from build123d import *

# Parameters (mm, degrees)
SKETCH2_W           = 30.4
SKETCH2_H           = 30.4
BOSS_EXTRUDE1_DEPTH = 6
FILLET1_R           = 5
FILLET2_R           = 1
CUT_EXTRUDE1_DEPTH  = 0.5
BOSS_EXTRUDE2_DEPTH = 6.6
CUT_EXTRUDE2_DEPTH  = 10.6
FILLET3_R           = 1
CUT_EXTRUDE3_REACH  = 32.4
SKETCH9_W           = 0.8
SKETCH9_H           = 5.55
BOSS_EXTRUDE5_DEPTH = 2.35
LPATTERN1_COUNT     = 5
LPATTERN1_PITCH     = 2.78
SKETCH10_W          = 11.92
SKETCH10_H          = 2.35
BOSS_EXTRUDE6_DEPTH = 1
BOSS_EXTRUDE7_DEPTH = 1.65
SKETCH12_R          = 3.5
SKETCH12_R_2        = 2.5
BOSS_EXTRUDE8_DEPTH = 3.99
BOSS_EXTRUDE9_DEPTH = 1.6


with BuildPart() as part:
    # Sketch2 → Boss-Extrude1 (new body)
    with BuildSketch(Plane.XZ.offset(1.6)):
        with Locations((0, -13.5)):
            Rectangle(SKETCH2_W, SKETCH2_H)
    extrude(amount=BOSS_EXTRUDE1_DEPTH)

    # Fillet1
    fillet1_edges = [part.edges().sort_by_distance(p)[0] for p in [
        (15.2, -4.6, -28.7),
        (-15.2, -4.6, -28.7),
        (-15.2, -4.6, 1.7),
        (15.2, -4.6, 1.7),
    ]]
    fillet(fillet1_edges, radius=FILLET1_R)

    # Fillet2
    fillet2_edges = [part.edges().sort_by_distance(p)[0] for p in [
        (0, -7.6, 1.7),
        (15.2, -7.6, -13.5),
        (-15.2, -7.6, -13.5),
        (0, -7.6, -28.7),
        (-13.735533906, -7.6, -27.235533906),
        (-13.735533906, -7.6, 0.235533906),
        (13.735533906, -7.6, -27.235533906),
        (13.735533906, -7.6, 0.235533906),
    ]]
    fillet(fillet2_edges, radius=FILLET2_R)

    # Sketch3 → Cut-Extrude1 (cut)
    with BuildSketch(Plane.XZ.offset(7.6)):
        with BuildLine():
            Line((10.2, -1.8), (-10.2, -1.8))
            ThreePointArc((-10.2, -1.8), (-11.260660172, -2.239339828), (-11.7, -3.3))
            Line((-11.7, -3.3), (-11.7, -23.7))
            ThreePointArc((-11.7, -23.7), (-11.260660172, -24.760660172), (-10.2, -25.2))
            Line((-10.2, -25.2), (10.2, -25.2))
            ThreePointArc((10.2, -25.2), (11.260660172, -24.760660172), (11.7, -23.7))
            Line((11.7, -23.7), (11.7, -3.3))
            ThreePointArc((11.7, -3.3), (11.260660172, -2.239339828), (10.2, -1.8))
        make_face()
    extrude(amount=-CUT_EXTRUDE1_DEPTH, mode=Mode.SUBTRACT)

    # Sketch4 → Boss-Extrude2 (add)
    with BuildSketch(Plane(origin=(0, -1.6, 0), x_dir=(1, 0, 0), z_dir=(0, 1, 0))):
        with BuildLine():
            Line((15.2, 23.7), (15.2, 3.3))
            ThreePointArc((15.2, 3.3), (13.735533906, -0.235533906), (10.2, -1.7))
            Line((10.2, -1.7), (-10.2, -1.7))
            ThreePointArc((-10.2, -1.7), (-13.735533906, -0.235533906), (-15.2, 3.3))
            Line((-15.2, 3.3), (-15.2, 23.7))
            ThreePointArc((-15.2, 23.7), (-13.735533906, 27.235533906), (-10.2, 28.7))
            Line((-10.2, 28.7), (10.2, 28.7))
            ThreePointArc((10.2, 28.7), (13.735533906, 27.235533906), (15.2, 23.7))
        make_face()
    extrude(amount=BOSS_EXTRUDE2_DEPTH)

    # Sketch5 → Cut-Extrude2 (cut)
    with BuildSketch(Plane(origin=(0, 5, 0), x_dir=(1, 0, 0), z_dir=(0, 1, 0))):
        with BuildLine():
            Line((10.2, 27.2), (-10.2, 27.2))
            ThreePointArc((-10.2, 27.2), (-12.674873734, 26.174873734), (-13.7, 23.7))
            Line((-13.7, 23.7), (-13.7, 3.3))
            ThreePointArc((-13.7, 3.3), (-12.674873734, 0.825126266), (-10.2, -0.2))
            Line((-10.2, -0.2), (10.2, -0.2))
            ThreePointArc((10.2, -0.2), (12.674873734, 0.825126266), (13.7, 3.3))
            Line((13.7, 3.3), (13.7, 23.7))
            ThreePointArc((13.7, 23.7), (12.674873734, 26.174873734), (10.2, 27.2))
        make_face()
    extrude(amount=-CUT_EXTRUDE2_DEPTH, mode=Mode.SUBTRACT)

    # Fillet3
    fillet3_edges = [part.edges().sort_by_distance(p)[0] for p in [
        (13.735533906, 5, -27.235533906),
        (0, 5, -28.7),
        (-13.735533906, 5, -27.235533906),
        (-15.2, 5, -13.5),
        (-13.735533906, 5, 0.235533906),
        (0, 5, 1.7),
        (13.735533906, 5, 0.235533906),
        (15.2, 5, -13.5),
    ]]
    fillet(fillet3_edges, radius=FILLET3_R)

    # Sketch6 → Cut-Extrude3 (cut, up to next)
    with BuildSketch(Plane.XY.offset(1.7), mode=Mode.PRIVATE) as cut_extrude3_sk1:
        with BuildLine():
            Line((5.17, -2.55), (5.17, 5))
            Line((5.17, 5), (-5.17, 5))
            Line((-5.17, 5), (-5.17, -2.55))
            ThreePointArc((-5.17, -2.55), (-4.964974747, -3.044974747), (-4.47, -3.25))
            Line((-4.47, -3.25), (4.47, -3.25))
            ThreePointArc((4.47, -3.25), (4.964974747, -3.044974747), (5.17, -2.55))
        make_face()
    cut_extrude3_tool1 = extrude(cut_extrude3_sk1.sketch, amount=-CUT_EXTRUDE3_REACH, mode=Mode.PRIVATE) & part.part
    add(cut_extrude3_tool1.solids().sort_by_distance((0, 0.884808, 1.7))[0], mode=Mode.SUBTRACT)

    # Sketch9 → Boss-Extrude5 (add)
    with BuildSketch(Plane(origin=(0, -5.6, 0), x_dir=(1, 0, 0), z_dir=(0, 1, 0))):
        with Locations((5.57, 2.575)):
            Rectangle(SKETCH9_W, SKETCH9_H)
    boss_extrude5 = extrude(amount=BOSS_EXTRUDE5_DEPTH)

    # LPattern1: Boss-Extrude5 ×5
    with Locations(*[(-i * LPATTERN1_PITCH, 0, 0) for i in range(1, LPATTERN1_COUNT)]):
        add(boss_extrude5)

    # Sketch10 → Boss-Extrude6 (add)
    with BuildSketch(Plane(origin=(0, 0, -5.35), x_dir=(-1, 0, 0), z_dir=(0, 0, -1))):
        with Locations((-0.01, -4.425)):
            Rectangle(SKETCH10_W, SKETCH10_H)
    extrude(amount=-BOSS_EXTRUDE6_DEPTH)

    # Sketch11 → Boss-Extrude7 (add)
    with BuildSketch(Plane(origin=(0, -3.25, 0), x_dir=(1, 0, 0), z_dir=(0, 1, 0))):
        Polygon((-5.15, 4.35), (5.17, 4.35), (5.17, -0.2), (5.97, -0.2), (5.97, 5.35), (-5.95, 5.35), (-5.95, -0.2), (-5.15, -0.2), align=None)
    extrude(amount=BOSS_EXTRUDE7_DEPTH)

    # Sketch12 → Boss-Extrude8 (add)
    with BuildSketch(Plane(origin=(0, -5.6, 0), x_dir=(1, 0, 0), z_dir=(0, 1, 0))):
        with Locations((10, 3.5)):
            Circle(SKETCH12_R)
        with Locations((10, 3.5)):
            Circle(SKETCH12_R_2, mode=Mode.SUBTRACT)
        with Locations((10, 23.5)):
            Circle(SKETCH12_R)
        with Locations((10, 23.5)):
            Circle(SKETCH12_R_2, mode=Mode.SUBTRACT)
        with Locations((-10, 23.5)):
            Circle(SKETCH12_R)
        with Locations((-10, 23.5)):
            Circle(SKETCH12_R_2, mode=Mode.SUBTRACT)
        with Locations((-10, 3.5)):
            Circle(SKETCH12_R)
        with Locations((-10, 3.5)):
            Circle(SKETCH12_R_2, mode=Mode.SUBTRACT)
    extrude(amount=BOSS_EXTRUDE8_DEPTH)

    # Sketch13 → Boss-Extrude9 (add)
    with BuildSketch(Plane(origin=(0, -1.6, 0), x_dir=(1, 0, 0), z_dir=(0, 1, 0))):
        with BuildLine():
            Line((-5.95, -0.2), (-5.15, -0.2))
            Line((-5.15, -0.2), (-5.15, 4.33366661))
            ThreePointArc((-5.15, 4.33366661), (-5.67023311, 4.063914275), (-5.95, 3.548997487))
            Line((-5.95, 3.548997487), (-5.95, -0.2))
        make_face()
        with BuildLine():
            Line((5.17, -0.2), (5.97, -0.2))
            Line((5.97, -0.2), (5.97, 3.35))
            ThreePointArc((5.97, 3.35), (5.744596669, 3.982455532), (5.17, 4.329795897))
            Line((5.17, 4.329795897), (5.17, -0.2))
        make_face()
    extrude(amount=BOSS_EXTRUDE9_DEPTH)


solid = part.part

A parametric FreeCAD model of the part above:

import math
import FreeCAD as App
import Part
import Sketcher

V = App.Vector


def edges_at(feature, points):
    """Names of the edges that pass closest to the given points."""
    edges = feature.Shape.Edges
    near = lambda p: min(range(len(edges)), key=lambda i: edges[i].distToShape(Part.Vertex(*p))[0])
    return sorted({f"Edge{near(p) + 1}" for p in points})


def add_polygon(sketch, points):
    """Adds a closed chain of lines whose ends are joined by coincident constraints."""
    first, n = sketch.GeometryCount, len(points)
    for a, b in zip(points, points[1:] + points[:1]):
        sketch.addGeometry(Part.LineSegment(App.Vector(*a, 0), App.Vector(*b, 0)), False)
    for i in range(n):
        sketch.addConstraint(Sketcher.Constraint("Coincident", first + i, 2, first + (i + 1) % n, 1))

doc = App.newDocument("Part")
body = doc.addObject("PartDesign::Body", "Body")

# Sketch on XZ plane
sketch1 = body.newObject("Sketcher::SketchObject", "Sketch")
sketch1.AttachmentSupport = (doc.getObject("XZ_Plane"), [""])
sketch1.MapMode = "FlatFace"
sketch1.AttachmentOffset = App.Placement(V(0, 0, 1.6), App.Rotation())
add_polygon(sketch1, [(-15, 2), (-15, -29), (15, -29), (15, 2)])  # lines 0-3
sketch1.addConstraint([
    Sketcher.Constraint("Vertical", 0),
    Sketcher.Constraint("Horizontal", 1),
    Sketcher.Constraint("Vertical", 2),
    Sketcher.Constraint("Horizontal", 3),
    Sketcher.Constraint("Equal", 3, 0),
    Sketcher.Constraint("DistanceX", 1, 1, 1, 2, 30.4),
    Sketcher.Constraint("DistanceX", 0, 2, -1, 1, 15.2),
    Sketcher.Constraint("DistanceY", 0, 2, -1, 1, 28.7),
])
pad1 = body.newObject("PartDesign::Pad", "Pad")
pad1.Profile = sketch1
pad1.Length = 6
doc.recompute()

fillet = body.newObject("PartDesign::Fillet", "Fillet")
fillet.Base = (pad1, edges_at(pad1, [
    (15.2, -4.6, -28.7),
    (-15.2, -4.6, -28.7),
    (-15.2, -4.6, 1.7),
    (15.2, -4.6, 1.7),
]))
fillet.Radius = 5
doc.recompute()

fillet2 = body.newObject("PartDesign::Fillet", "Fillet001")
fillet2.Base = (fillet, edges_at(fillet, [
    (0, -7.6, 1.7),
    (15.2, -7.6, -13.5),
    (-15.2, -7.6, -13.5),
    (0, -7.6, -28.7),
    (-13.736, -7.6, -27.236),
    (-13.736, -7.6, 0.236),
    (13.736, -7.6, -27.236),
    (13.736, -7.6, 0.236),
]))
fillet2.Radius = 1

# Sketch on XZ plane
sketch2 = body.newObject("Sketcher::SketchObject", "Sketch001")
sketch2.AttachmentSupport = (doc.getObject("XZ_Plane"), [""])
sketch2.MapMode = "FlatFace"
sketch2.AttachmentOffset = App.Placement(V(0, 0, 7.6), App.Rotation())
sketch2.addGeometry([
    Part.LineSegment(V(10.2, -1.8, 0), V(-10.2, -1.8, 0)),  # 0
    Part.ArcOfCircle(Part.Circle(V(-10.2, -3.3, 0), V(0, 0, 1), 1.5), math.radians(90), math.radians(180)),  # 1
    Part.LineSegment(V(-11.7, -3.3, 0), V(-11.7, -23.7, 0)),  # 2
    Part.ArcOfCircle(Part.Circle(V(-10.2, -23.7, 0), V(0, 0, 1), 1.5), math.radians(180), math.radians(270)),  # 3
    Part.LineSegment(V(-10.2, -25.2, 0), V(10.2, -25.2, 0)),  # 4
    Part.ArcOfCircle(Part.Circle(V(10.2, -23.7, 0), V(0, 0, 1), 1.5), math.radians(-90), math.radians(0)),  # 5
    Part.LineSegment(V(11.7, -23.7, 0), V(11.7, -3.3, 0)),  # 6
    Part.ArcOfCircle(Part.Circle(V(10.2, -3.3, 0), V(0, 0, 1), 1.5), math.radians(0), math.radians(90)),  # 7
], False)
sketch2.addConstraint([
    Sketcher.Constraint("Tangent", 0, 2, 1, 1),
    Sketcher.Constraint("Tangent", 1, 2, 2, 1),
    Sketcher.Constraint("Tangent", 2, 2, 3, 1),
    Sketcher.Constraint("Tangent", 3, 2, 4, 1),
    Sketcher.Constraint("Tangent", 4, 2, 5, 1),
    Sketcher.Constraint("Tangent", 5, 2, 6, 1),
    Sketcher.Constraint("Tangent", 6, 2, 7, 1),
    Sketcher.Constraint("Tangent", 7, 2, 0, 1),
    Sketcher.Constraint("Horizontal", 0),
    Sketcher.Constraint("Vertical", 2),
    Sketcher.Constraint("Horizontal", 4),
    Sketcher.Constraint("Vertical", 6),
    Sketcher.Constraint("Equal", 1, 3),
    Sketcher.Constraint("Equal", 3, 5),
    Sketcher.Constraint("Equal", 5, 7),
    Sketcher.Constraint("Equal", 4, 2),
    Sketcher.Constraint("Radius", 1, 1.5),
    Sketcher.Constraint("DistanceX", 0, 2, 0, 1, 20.4),
    Sketcher.Constraint("DistanceX", 1, 3, -1, 1, 10.2),
    Sketcher.Constraint("DistanceY", 1, 3, -1, 1, 3.3),
])
pocket1 = body.newObject("PartDesign::Pocket", "Pocket")
pocket1.Profile = sketch2
pocket1.Length = 0.5

# Sketch on XZ plane
sketch3 = body.newObject("Sketcher::SketchObject", "Sketch002")
sketch3.AttachmentSupport = (doc.getObject("XZ_Plane"), [""])
sketch3.MapMode = "FlatFace"
sketch3.AttachmentOffset = App.Placement(V(0, 0, 1.6), App.Rotation())
sketch3.addGeometry([
    Part.LineSegment(V(15, -3, 0), V(15, -24, 0)),  # 0
    Part.ArcOfCircle(Part.Circle(V(10, -24, 0), V(0, 0, 1), 5), math.radians(-90), math.radians(0)),  # 1
    Part.LineSegment(V(10, -29, 0), V(-10, -29, 0)),  # 2
    Part.ArcOfCircle(Part.Circle(V(-10, -24, 0), V(0, 0, 1), 5), math.radians(180), math.radians(270)),  # 3
    Part.LineSegment(V(-15, -24, 0), V(-15, -3, 0)),  # 4
    Part.ArcOfCircle(Part.Circle(V(-10, -3, 0), V(0, 0, 1), 5), math.radians(90), math.radians(180)),  # 5
    Part.LineSegment(V(-10, 2, 0), V(10, 2, 0)),  # 6
    Part.ArcOfCircle(Part.Circle(V(10, -3, 0), V(0, 0, 1), 5), math.radians(0), math.radians(90)),  # 7
], False)
sketch3.addConstraint([
    Sketcher.Constraint("Tangent", 0, 2, 1, 2),
    Sketcher.Constraint("Tangent", 1, 1, 2, 1),
    Sketcher.Constraint("Tangent", 2, 2, 3, 2),
    Sketcher.Constraint("Tangent", 3, 1, 4, 1),
    Sketcher.Constraint("Tangent", 4, 2, 5, 2),
    Sketcher.Constraint("Tangent", 5, 1, 6, 1),
    Sketcher.Constraint("Tangent", 6, 2, 7, 2),
    Sketcher.Constraint("Tangent", 7, 1, 0, 1),
    Sketcher.Constraint("Vertical", 0),
    Sketcher.Constraint("Horizontal", 2),
    Sketcher.Constraint("Vertical", 4),
    Sketcher.Constraint("Horizontal", 6),
    Sketcher.Constraint("Equal", 1, 3),
    Sketcher.Constraint("Equal", 3, 5),
    Sketcher.Constraint("Equal", 5, 7),
    Sketcher.Constraint("Equal", 6, 0),
    Sketcher.Constraint("Radius", 1, 5.0),
    Sketcher.Constraint("DistanceX", 2, 2, 2, 1, 20.4),
    Sketcher.Constraint("DistanceX", -1, 1, 1, 3, 10.2),
    Sketcher.Constraint("DistanceY", 1, 3, -1, 1, 23.7),
])
pad2 = body.newObject("PartDesign::Pad", "Pad001")
pad2.Profile = sketch3
pad2.Length = 6.6
pad2.Reversed = True

# Sketch on XZ plane
sketch4 = body.newObject("Sketcher::SketchObject", "Sketch003")
sketch4.AttachmentSupport = (doc.getObject("XZ_Plane"), [""])
sketch4.MapMode = "FlatFace"
sketch4.AttachmentOffset = App.Placement(V(0, 0, -5), App.Rotation())
sketch4.addGeometry([
    Part.LineSegment(V(10.2, -27.2, 0), V(-10.2, -27.2, 0)),  # 0
    Part.ArcOfCircle(Part.Circle(V(-10.2, -23.7, 0), V(0, 0, 1), 3.5), math.radians(-180), math.radians(-90)),  # 1
    Part.LineSegment(V(-13.7, -23.7, 0), V(-13.7, -3.3, 0)),  # 2
    Part.ArcOfCircle(Part.Circle(V(-10.2, -3.3, 0), V(0, 0, 1), 3.5), math.radians(90), math.radians(180)),  # 3
    Part.LineSegment(V(-10.2, 0.2, 0), V(10.2, 0.2, 0)),  # 4
    Part.ArcOfCircle(Part.Circle(V(10.2, -3.3, 0), V(0, 0, 1), 3.5), math.radians(0), math.radians(90)),  # 5
    Part.LineSegment(V(13.7, -3.3, 0), V(13.7, -23.7, 0)),  # 6
    Part.ArcOfCircle(Part.Circle(V(10.2, -23.7, 0), V(0, 0, 1), 3.5), math.radians(-90), math.radians(0)),  # 7
], False)
sketch4.addConstraint([
    Sketcher.Constraint("Tangent", 0, 2, 1, 2),
    Sketcher.Constraint("Tangent", 1, 1, 2, 1),
    Sketcher.Constraint("Tangent", 2, 2, 3, 2),
    Sketcher.Constraint("Tangent", 3, 1, 4, 1),
    Sketcher.Constraint("Tangent", 4, 2, 5, 2),
    Sketcher.Constraint("Tangent", 5, 1, 6, 1),
    Sketcher.Constraint("Tangent", 6, 2, 7, 2),
    Sketcher.Constraint("Tangent", 7, 1, 0, 1),
    Sketcher.Constraint("Horizontal", 0),
    Sketcher.Constraint("Vertical", 2),
    Sketcher.Constraint("Horizontal", 4),
    Sketcher.Constraint("Vertical", 6),
    Sketcher.Constraint("Equal", 1, 3),
    Sketcher.Constraint("Equal", 3, 5),
    Sketcher.Constraint("Equal", 5, 7),
    Sketcher.Constraint("Equal", 4, 2),
    Sketcher.Constraint("Radius", 1, 3.5),
    Sketcher.Constraint("DistanceX", 0, 2, 0, 1, 20.4),
    Sketcher.Constraint("DistanceX", 1, 3, -1, 1, 10.2),
    Sketcher.Constraint("DistanceY", 1, 3, -1, 1, 23.7),
])
pocket2 = body.newObject("PartDesign::Pocket", "Pocket001")
pocket2.Profile = sketch4
pocket2.Length = 10.6
pocket2.Reversed = True
doc.recompute()

fillet3 = body.newObject("PartDesign::Fillet", "Fillet002")
fillet3.Base = (pocket2, edges_at(pocket2, [
    (13.736, 5, -27.236),
    (0, 5, -28.7),
    (-13.736, 5, -27.236),
    (-15.2, 5, -13.5),
    (-13.736, 5, 0.236),
    (0, 5, 1.7),
    (13.736, 5, 0.236),
    (15.2, 5, -13.5),
]))
fillet3.Radius = 1

# Sketch on XY plane
sketch5 = body.newObject("Sketcher::SketchObject", "Sketch004")
sketch5.AttachmentSupport = (doc.getObject("XY_Plane"), [""])
sketch5.MapMode = "FlatFace"
sketch5.AttachmentOffset = App.Placement(V(0, 0, 1.7), App.Rotation())
sketch5.addGeometry([
    Part.LineSegment(V(5.2, -2.5, 0), V(5.2, 5, 0)),  # 0
    Part.LineSegment(V(5.2, 5, 0), V(-5.2, 5, 0)),  # 1
    Part.LineSegment(V(-5.2, 5, 0), V(-5.2, -2.5, 0)),  # 2
    Part.ArcOfCircle(Part.Circle(V(-4.5, -2.6, 0), V(0, 0, 1), 0.7), math.radians(180), math.radians(270)),  # 3
    Part.LineSegment(V(-4.5, -3.2, 0), V(4.5, -3.2, 0)),  # 4
    Part.ArcOfCircle(Part.Circle(V(4.5, -2.6, 0), V(0, 0, 1), 0.7), math.radians(-90), math.radians(0)),  # 5
], False)
sketch5.addConstraint([
    Sketcher.Constraint("Coincident", 0, 2, 1, 1),
    Sketcher.Constraint("Coincident", 1, 2, 2, 1),
    Sketcher.Constraint("Tangent", 2, 2, 3, 1),
    Sketcher.Constraint("Tangent", 3, 2, 4, 1),
    Sketcher.Constraint("Tangent", 4, 2, 5, 1),
    Sketcher.Constraint("Tangent", 5, 2, 0, 1),
    Sketcher.Constraint("Vertical", 0),
    Sketcher.Constraint("Horizontal", 1),
    Sketcher.Constraint("Vertical", 2),
    Sketcher.Constraint("Horizontal", 4),
    Sketcher.Constraint("Equal", 3, 5),
    Sketcher.Constraint("Radius", 3, 0.7),
    Sketcher.Constraint("DistanceY", -1, 1, 0, 2, 5.0),
    Sketcher.Constraint("DistanceX", 1, 2, 1, 1, 10.34),
    Sketcher.Constraint("DistanceY", 0, 1, 0, 2, 7.55),
    Sketcher.Constraint("DistanceX", 3, 3, -1, 1, 4.47),
])
pocket3 = body.newObject("PartDesign::Pocket", "Pocket002")
pocket3.Profile = sketch5
pocket3.Type = "UpToFirst"

# Sketch on XZ plane
sketch6 = body.newObject("Sketcher::SketchObject", "Sketch005")
sketch6.AttachmentSupport = (doc.getObject("XZ_Plane"), [""])
sketch6.MapMode = "FlatFace"
sketch6.AttachmentOffset = App.Placement(V(0, 0, 5.6), App.Rotation())
add_polygon(sketch6, [(5.2, -5.3), (5.2, 0.2), (6, 0.2), (6, -5.3)])  # lines 0-3
sketch6.addConstraint([
    Sketcher.Constraint("Vertical", 0),
    Sketcher.Constraint("Horizontal", 1),
    Sketcher.Constraint("Vertical", 2),
    Sketcher.Constraint("Horizontal", 3),
    Sketcher.Constraint("DistanceX", 1, 1, 1, 2, 0.8),
    Sketcher.Constraint("DistanceY", 0, 1, 0, 2, 5.55),
    Sketcher.Constraint("DistanceY", -1, 1, 0, 2, 0.2),
    Sketcher.Constraint("DistanceX", -1, 1, 0, 2, 5.17),
])
pad3 = body.newObject("PartDesign::Pad", "Pad002")
pad3.Profile = sketch6
pad3.Length = 2.35
pad3.Reversed = True
doc.recompute()

linearpattern = body.newObject("PartDesign::LinearPattern", "LinearPattern")
linearpattern.Originals = [pad3]
linearpattern.Direction = (doc.getObject("X_Axis"), [""])
linearpattern.Mode = "offset"
linearpattern.Offset = 2.78
linearpattern.Occurrences = 5
linearpattern.Reversed = True
body.Tip = linearpattern

# Sketch on XY plane
sketch7 = body.newObject("Sketcher::SketchObject", "Sketch006")
sketch7.AttachmentSupport = (doc.getObject("XY_Plane"), [""])
sketch7.MapMode = "FlatFace"
sketch7.AttachmentOffset = App.Placement(V(0, 0, -5.35), App.Rotation())
add_polygon(sketch7, [(6, -3.2), (6, -5.6), (-6, -5.6), (-6, -3.2)])  # lines 0-3
sketch7.addConstraint([
    Sketcher.Constraint("Vertical", 0),
    Sketcher.Constraint("Horizontal", 1),
    Sketcher.Constraint("Vertical", 2),
    Sketcher.Constraint("Horizontal", 3),
    Sketcher.Constraint("DistanceX", 1, 2, 1, 1, 11.92),
    Sketcher.Constraint("DistanceY", 0, 2, 0, 1, 2.35),
    Sketcher.Constraint("DistanceY", 0, 2, -1, 1, 5.6),
    Sketcher.Constraint("DistanceX", -1, 1, 0, 2, 5.97),
])
pad4 = body.newObject("PartDesign::Pad", "Pad003")
pad4.Profile = sketch7
pad4.Length = 1

# Sketch on XZ plane
sketch8 = body.newObject("Sketcher::SketchObject", "Sketch007")
sketch8.AttachmentSupport = (doc.getObject("XZ_Plane"), [""])
sketch8.MapMode = "FlatFace"
sketch8.AttachmentOffset = App.Placement(V(0, 0, 3.25), App.Rotation())
add_polygon(sketch8, [(-5.2, -4.3), (5.2, -4.3), (5.2, 0.2), (6, 0.2), (6, -5.3), (-6, -5.3), (-6, 0.2), (-5.2, 0.2)])  # lines 0-7
sketch8.addConstraint([
    Sketcher.Constraint("Horizontal", 0),
    Sketcher.Constraint("Vertical", 1),
    Sketcher.Constraint("Horizontal", 2),
    Sketcher.Constraint("Vertical", 3),
    Sketcher.Constraint("Horizontal", 4),
    Sketcher.Constraint("Vertical", 5),
    Sketcher.Constraint("Horizontal", 6),
    Sketcher.Constraint("Vertical", 7),
    Sketcher.Constraint("Horizontal", 2, 2, 5, 2),
    Sketcher.Constraint("Equal", 2, 6),
    Sketcher.Constraint("DistanceX", 2, 1, 2, 2, 0.8),
    Sketcher.Constraint("DistanceY", 3, 2, 0, 2, 1.0),
    Sketcher.Constraint("DistanceX", 0, 1, 0, 2, 10.32),
    Sketcher.Constraint("DistanceY", 1, 1, 1, 2, 4.55),
    Sketcher.Constraint("DistanceY", -1, 1, 1, 2, 0.2),
    Sketcher.Constraint("DistanceX", -1, 1, 0, 2, 5.17),
])
pad5 = body.newObject("PartDesign::Pad", "Pad004")
pad5.Profile = sketch8
pad5.Length = 1.65
pad5.Reversed = True

# Sketch on XZ plane
sketch9 = body.newObject("Sketcher::SketchObject", "Sketch008")
sketch9.AttachmentSupport = (doc.getObject("XZ_Plane"), [""])
sketch9.MapMode = "FlatFace"
sketch9.AttachmentOffset = App.Placement(V(0, 0, 5.6), App.Rotation())
sketch9.addGeometry([
    Part.Circle(V(10, -3.5, 0), V(0, 0, 1), 3.5),  # 0
    Part.Circle(V(10, -3.5, 0), V(0, 0, 1), 2.5),  # 1
    Part.Circle(V(10, -23.5, 0), V(0, 0, 1), 3.5),  # 2
    Part.Circle(V(10, -23.5, 0), V(0, 0, 1), 2.5),  # 3
    Part.Circle(V(-10, -23.5, 0), V(0, 0, 1), 3.5),  # 4
    Part.Circle(V(-10, -23.5, 0), V(0, 0, 1), 2.5),  # 5
    Part.Circle(V(-10, -3.5, 0), V(0, 0, 1), 3.5),  # 6
    Part.Circle(V(-10, -3.5, 0), V(0, 0, 1), 2.5),  # 7
], False)
sketch9.addConstraint([
    Sketcher.Constraint("Coincident", 1, 3, 0, 3),
    Sketcher.Constraint("Coincident", 3, 3, 2, 3),
    Sketcher.Constraint("Coincident", 5, 3, 4, 3),
    Sketcher.Constraint("Coincident", 7, 3, 6, 3),
    Sketcher.Constraint("Equal", 0, 2),
    Sketcher.Constraint("Equal", 1, 3),
    Sketcher.Constraint("Equal", 2, 4),
    Sketcher.Constraint("Equal", 3, 5),
    Sketcher.Constraint("Equal", 4, 6),
    Sketcher.Constraint("Equal", 5, 7),
    Sketcher.Constraint("Symmetric", 2, 3, 4, 3, -2),
    Sketcher.Constraint("Symmetric", 0, 3, 6, 3, -2),
    Sketcher.Constraint("Vertical", 1, 3, 2, 3),
    Sketcher.Constraint("Diameter", 0, 7.0),
    Sketcher.Constraint("Diameter", 1, 5.0),
    Sketcher.Constraint("DistanceX", -1, 1, 0, 3, 10.0),
    Sketcher.Constraint("DistanceY", 2, 3, 0, 3, 20.0),
    Sketcher.Constraint("DistanceY", 0, 3, -1, 1, 3.5),
])
pad6 = body.newObject("PartDesign::Pad", "Pad005")
pad6.Profile = sketch9
pad6.Length = 3.99
pad6.Reversed = True

# Sketch on XZ plane
sketch10 = body.newObject("Sketcher::SketchObject", "Sketch009")
sketch10.AttachmentSupport = (doc.getObject("XZ_Plane"), [""])
sketch10.MapMode = "FlatFace"
sketch10.AttachmentOffset = App.Placement(V(0, 0, 1.6), App.Rotation())
sketch10.addGeometry([
    Part.LineSegment(V(-6, 0.2, 0), V(-5.2, 0.2, 0)),  # 0
    Part.LineSegment(V(-5.2, 0.2, 0), V(-5.2, -4.3, 0)),  # 1
    Part.ArcOfCircle(Part.Circle(V(-5, -3.4, 0), V(0, 0, 1), 1), math.radians(-169), math.radians(-100)),  # 2
    Part.LineSegment(V(-6, -3.5, 0), V(-6, 0.2, 0)),  # 3
    Part.LineSegment(V(5.2, 0.2, 0), V(6, 0.2, 0)),  # 4
    Part.LineSegment(V(6, 0.2, 0), V(6, -3.4, 0)),  # 5
    Part.ArcOfCircle(Part.Circle(V(5, -3.4, 0), V(0, 0, 1), 1), math.radians(-78), math.radians(0)),  # 6
    Part.LineSegment(V(5.2, -4.3, 0), V(5.2, 0.2, 0)),  # 7
], False)
sketch10.addConstraint([
    Sketcher.Constraint("Coincident", 0, 2, 1, 1),
    Sketcher.Constraint("Coincident", 1, 2, 2, 2),
    Sketcher.Constraint("Coincident", 2, 1, 3, 1),
    Sketcher.Constraint("Coincident", 3, 2, 0, 1),
    Sketcher.Constraint("Coincident", 4, 2, 5, 1),
    Sketcher.Constraint("Tangent", 5, 2, 6, 2),
    Sketcher.Constraint("Coincident", 6, 1, 7, 1),
    Sketcher.Constraint("Coincident", 7, 2, 4, 1),
    Sketcher.Constraint("Horizontal", 0),
    Sketcher.Constraint("Vertical", 1),
    Sketcher.Constraint("Vertical", 3),
    Sketcher.Constraint("Horizontal", 4),
    Sketcher.Constraint("Vertical", 5),
    Sketcher.Constraint("Vertical", 7),
    Sketcher.Constraint("Equal", 2, 6),
    Sketcher.Constraint("Symmetric", 2, 3, 6, 3, -2),
    Sketcher.Constraint("Horizontal", 3, 2, 4, 2),
    Sketcher.Constraint("Equal", 0, 4),
    Sketcher.Constraint("Radius", 2, 1.0),
    Sketcher.Constraint("DistanceX", 0, 1, 0, 2, 0.8),
    Sketcher.Constraint("DistanceY", 5, 2, 5, 1, 3.55),
    Sketcher.Constraint("DistanceY", -1, 1, 0, 2, 0.2),
    Sketcher.Constraint("DistanceX", 2, 3, -1, 1, 4.97),
    Sketcher.Constraint("DistanceX", 0, 2, -1, 1, 5.15),
])
pad7 = body.newObject("PartDesign::Pad", "Pad006")
pad7.Profile = sketch10
pad7.Length = 1.6
pad7.Reversed = True

doc.recompute()
